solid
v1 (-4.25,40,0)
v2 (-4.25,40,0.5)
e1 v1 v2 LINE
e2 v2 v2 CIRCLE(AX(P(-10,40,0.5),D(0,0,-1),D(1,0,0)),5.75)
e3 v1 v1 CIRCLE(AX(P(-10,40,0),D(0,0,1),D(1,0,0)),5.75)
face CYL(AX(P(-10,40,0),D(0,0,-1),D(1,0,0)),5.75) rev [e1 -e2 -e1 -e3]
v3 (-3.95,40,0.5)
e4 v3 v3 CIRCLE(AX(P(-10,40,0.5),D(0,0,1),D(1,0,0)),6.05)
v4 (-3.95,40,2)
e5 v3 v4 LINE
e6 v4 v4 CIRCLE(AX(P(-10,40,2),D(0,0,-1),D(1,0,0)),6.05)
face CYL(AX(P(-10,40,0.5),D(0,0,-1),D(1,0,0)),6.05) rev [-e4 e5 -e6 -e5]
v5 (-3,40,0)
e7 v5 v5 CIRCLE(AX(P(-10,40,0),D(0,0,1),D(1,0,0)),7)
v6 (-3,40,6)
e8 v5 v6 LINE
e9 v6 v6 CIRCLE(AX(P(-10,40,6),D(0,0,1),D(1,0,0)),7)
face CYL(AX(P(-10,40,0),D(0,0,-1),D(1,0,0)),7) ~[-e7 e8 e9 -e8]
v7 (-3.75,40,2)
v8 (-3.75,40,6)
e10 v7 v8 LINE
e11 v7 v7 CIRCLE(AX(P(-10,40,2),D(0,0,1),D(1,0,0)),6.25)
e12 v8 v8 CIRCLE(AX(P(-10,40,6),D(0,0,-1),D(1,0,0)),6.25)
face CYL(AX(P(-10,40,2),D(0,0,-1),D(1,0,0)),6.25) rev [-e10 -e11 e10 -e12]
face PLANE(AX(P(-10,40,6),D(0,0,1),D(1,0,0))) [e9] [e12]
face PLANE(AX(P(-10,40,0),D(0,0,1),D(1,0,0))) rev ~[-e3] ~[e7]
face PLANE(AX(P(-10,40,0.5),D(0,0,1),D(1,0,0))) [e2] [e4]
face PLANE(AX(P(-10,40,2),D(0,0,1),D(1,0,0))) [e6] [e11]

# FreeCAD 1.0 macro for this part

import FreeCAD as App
import Part
import Sketcher

V = App.Vector
Q = App.Units.Quantity

doc = App.newDocument("Part")
body = doc.addObject("PartDesign::Body", "Body")

sketch1 = body.newObject("Sketcher::SketchObject", "Sketch")
sketch1.AttachmentSupport = (doc.getObject("XY_Plane"), [""])
sketch1.MapMode = "FlatFace"
sketch1.AttachmentOffset = App.Placement(V(0, 0, 2), App.Rotation())
sketch1.addGeometry(Part.Circle(V(0, 0, 0), V(0, 0, 1), 6), False)
sketch1.addConstraint([
    Sketcher.Constraint("Coincident", 0, 3, -1, 1),
    Sketcher.Constraint("Diameter", 0, Q("12.5 mm")),
])
pad1 = body.newObject("PartDesign::Pad", "Pad")
pad1.Profile = sketch1
pad1.Length = 10
body2 = doc.addObject("PartDesign::Body", "Body001")

sketch2 = body2.newObject("Sketcher::SketchObject", "Sketch001")
sketch2.AttachmentSupport = (doc.getObject("XY_Plane001"), [""])
sketch2.MapMode = "FlatFace"
sketch2.AttachmentOffset = App.Placement(V(0, 0, 0.5), App.Rotation())
sketch2.addGeometry(Part.Circle(V(0, 0, 0), V(0, 0, 1), 6), False)
sketch2.addConstraint([
    Sketcher.Constraint("Coincident", 0, 3, -1, 1),
    Sketcher.Constraint("Diameter", 0, Q("12.1 mm")),
])
pad2 = body2.newObject("PartDesign::Pad", "Pad001")
pad2.Profile = sketch2
pad2.Length = 10
body3 = doc.addObject("PartDesign::Body", "Body002")

sketch3 = body3.newObject("Sketcher::SketchObject", "Sketch002")
sketch3.AttachmentSupport = (doc.getObject("XY_Plane002"), [""])
sketch3.MapMode = "FlatFace"
sketch3.addGeometry(Part.Circle(V(0, 0, 0), V(0, 0, 1), 6), False)
sketch3.addConstraint([
    Sketcher.Constraint("Coincident", 0, 3, -1, 1),
    Sketcher.Constraint("Diameter", 0, Q("11.5 mm")),
])
pad3 = body3.newObject("PartDesign::Pad", "Pad002")
pad3.Profile = sketch3
pad3.Length = 10
body4 = doc.addObject("PartDesign::Body", "Body003")

sketch4 = body4.newObject("Sketcher::SketchObject", "Sketch003")
sketch4.AttachmentSupport = (doc.getObject("XY_Plane003"), [""])
sketch4.MapMode = "FlatFace"
sketch4.addGeometry(Part.Circle(V(0, 0, 0), V(0, 0, 1), 7), False)
sketch4.addConstraint([
    Sketcher.Constraint("Coincident", 0, 3, -1, 1),
    Sketcher.Constraint("Diameter", 0, Q("14 mm")),
])
pad4 = body4.newObject("PartDesign::Pad", "Pad003")
pad4.Profile = sketch4
pad4.Length = 6
doc.recompute()

boolean = body4.newObject("PartDesign::Boolean", "Boolean")
boolean.Type = "Cut"
boolean.addObjects([body3])
doc.recompute()

boolean2 = body4.newObject("PartDesign::Boolean", "Boolean001")
boolean2.Type = "Cut"
boolean2.addObjects([body2])
doc.recompute()

boolean3 = body4.newObject("PartDesign::Boolean", "Boolean002")
boolean3.Type = "Cut"
boolean3.addObjects([body])
body5 = doc.addObject("PartDesign::Body", "Body004")
doc.recompute()

body4.Placement = App.Placement(V(-10, 40, 0), App.Rotation(V(0, 0, 1), 0))
boolean4 = body5.newObject("PartDesign::Boolean", "Boolean003")
boolean4.Type = "Fuse"
boolean4.addObjects([body4])

doc.recompute()
